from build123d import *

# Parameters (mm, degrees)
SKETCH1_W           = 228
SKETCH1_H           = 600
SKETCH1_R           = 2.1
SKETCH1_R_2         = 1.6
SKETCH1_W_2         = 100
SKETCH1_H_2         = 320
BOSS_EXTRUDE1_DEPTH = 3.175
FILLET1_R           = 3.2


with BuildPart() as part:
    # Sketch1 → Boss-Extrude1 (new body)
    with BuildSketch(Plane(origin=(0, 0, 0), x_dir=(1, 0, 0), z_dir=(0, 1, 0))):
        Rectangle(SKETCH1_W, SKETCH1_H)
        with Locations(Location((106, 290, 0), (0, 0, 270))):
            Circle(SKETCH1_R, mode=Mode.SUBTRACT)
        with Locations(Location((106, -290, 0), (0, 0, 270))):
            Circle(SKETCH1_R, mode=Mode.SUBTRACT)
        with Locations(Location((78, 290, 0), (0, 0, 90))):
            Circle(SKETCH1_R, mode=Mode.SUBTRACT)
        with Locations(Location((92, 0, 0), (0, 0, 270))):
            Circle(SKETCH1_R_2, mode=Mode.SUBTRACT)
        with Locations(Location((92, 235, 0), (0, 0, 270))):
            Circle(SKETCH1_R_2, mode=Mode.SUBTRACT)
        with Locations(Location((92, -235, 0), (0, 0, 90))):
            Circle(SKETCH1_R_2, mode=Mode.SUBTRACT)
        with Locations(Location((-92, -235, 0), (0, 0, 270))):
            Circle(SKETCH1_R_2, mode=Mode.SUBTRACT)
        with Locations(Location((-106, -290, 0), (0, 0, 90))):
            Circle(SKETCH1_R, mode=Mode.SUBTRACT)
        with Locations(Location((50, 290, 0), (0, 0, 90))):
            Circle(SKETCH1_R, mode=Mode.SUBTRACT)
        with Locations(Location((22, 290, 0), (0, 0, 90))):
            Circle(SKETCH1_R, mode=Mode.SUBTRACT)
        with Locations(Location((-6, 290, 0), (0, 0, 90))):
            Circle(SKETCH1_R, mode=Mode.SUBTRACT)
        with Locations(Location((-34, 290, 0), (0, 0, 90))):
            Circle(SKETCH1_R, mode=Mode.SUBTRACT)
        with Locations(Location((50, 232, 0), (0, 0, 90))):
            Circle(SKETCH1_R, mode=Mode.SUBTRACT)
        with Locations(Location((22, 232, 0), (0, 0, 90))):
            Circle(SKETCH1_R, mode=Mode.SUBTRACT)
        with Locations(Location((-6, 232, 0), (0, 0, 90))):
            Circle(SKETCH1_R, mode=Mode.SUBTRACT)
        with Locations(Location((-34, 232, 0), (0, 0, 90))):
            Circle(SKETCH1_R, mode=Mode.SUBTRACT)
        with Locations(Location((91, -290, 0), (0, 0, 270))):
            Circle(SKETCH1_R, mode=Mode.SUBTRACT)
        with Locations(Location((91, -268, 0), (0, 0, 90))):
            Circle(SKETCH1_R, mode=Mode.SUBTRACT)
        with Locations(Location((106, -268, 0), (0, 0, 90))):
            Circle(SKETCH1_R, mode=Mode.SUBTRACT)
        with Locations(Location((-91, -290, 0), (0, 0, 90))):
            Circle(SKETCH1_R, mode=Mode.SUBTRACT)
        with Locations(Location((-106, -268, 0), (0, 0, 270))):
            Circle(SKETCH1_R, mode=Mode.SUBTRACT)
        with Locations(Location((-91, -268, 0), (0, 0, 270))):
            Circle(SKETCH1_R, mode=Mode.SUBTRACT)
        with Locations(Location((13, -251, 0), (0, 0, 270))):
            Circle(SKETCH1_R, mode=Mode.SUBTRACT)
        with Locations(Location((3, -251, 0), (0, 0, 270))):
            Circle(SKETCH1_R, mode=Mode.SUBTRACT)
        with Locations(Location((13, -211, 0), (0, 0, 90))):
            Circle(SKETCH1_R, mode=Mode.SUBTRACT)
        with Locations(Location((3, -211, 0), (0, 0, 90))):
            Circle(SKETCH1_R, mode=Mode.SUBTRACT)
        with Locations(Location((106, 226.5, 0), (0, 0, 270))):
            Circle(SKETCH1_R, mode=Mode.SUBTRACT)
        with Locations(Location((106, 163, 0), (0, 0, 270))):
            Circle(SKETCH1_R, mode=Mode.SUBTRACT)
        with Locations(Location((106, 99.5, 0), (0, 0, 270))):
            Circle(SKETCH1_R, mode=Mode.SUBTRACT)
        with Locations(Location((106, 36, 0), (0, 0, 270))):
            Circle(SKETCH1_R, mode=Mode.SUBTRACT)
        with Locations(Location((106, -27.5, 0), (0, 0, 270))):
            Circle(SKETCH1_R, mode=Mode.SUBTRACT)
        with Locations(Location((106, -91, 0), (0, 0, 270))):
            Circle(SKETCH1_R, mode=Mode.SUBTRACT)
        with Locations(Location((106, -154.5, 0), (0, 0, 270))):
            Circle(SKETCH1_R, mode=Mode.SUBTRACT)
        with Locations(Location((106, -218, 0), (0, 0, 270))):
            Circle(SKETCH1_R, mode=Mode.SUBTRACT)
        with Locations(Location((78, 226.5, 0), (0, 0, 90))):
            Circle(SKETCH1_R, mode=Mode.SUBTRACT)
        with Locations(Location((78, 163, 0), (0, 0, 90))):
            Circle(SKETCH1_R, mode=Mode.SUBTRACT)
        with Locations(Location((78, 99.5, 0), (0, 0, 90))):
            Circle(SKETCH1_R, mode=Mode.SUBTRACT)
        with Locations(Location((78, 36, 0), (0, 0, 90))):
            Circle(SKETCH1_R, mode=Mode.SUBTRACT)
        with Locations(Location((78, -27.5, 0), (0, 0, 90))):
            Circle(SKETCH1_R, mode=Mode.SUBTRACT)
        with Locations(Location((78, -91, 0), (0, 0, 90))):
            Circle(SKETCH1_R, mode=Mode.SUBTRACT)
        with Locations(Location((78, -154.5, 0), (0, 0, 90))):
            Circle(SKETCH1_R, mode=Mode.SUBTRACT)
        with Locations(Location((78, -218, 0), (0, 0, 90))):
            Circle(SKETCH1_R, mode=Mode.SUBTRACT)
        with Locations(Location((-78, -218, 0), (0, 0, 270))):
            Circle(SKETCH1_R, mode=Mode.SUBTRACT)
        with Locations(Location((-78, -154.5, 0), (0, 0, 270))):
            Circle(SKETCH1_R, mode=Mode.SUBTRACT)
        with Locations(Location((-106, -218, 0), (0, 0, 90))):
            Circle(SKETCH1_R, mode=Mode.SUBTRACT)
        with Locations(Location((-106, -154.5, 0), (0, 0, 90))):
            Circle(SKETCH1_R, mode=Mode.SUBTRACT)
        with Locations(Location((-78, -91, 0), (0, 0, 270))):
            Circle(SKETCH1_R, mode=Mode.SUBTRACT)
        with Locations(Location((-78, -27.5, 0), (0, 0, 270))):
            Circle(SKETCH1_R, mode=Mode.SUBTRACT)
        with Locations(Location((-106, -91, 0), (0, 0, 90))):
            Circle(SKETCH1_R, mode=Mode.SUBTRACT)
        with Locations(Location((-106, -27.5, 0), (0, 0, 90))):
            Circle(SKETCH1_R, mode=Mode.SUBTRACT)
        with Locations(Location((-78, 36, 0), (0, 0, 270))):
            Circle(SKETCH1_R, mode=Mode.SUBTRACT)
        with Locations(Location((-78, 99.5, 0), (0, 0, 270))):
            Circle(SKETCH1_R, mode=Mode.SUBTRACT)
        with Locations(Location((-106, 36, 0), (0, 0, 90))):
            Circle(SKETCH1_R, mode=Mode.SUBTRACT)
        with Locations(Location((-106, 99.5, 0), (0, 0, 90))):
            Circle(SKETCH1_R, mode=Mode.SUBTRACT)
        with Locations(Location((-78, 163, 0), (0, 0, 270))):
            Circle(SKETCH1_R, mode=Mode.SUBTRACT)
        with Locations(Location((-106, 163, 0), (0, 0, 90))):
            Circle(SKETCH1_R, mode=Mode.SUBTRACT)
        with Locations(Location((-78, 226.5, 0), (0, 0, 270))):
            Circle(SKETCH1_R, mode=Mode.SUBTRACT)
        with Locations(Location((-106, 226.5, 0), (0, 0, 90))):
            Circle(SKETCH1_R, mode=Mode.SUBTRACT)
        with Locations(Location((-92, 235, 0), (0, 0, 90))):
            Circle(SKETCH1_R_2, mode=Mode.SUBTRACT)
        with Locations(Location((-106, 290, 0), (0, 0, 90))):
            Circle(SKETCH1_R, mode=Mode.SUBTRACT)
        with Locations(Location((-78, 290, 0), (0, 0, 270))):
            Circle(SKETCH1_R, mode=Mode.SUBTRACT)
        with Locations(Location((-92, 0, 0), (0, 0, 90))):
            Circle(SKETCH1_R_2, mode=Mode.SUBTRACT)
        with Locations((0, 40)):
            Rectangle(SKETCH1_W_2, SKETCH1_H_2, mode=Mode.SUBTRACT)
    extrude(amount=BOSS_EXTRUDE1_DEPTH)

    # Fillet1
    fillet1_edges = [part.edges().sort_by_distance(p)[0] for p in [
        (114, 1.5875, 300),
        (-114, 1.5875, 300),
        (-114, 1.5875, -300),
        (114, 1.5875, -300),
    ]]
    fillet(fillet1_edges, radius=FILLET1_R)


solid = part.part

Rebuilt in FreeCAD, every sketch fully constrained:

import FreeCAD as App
import Part
import Sketcher
Q = App.Units.Quantity


def edges_at(feature, points):
    """Names of the edges that pass closest to the given points."""
    edges = feature.Shape.Edges
    near = lambda p: min(range(len(edges)), key=lambda i: edges[i].distToShape(Part.Vertex(*p))[0])
    return sorted({f"Edge{near(p) + 1}" for p in points})

doc = App.newDocument("Part")
params = doc.addObject("Spreadsheet::Sheet", "Params")
for row, (alias, value) in enumerate([
    ("sketch1_diameter", "4.2 mm"),
    ("sketch1_diameter2", "3.2 mm"),
    ("sketch1_width", "228 mm"),
    ("sketch1_width2", "100 mm"),
    ("sketch1_height", "600 mm"),
    ("pad1_length", "3.175 mm"),
    ("fillet_radius", "3.2 mm"),
], start=1):
    params.set(f"A{row}", alias)
    params.set(f"B{row}", "=" + value)
    params.setAlias(f"B{row}", alias)

body = doc.addObject("PartDesign::Body", "Body")

# Sketch on XZ plane
sketch1 = body.newObject("Sketcher::SketchObject", "Sketch")
sketch1.AttachmentSupport = (doc.getObject("XZ_Plane"), [""])
sketch1.MapMode = "FlatFace"
sketch1.addGeometry(Part.LineSegment(App.Vector(-114, -300, 0), App.Vector(-114, 300, 0)), False)
sketch1.addGeometry(Part.LineSegment(App.Vector(-114, 300, 0), App.Vector(114, 300, 0)), False)
sketch1.addGeometry(Part.LineSegment(App.Vector(114, 300, 0), App.Vector(114, -300, 0)), False)
sketch1.addGeometry(Part.LineSegment(App.Vector(114, -300, 0), App.Vector(-114, -300, 0)), False)
sketch1.addGeometry(Part.Circle(App.Vector(-106, 290, 0), App.Vector(0, 0, 1), 2.1), False)
sketch1.addGeometry(Part.Circle(App.Vector(-106, 268, 0), App.Vector(0, 0, 1), 2.1), False)
sketch1.addGeometry(Part.Circle(App.Vector(-91, 290, 0), App.Vector(0, 0, 1), 2.1), False)
sketch1.addGeometry(Part.Circle(App.Vector(-91, 268, 0), App.Vector(0, 0, 1), 2.1), False)
sketch1.addGeometry(Part.Circle(App.Vector(-92, 235, 0), App.Vector(0, 0, 1), 1.6), False)
sketch1.addGeometry(Part.Circle(App.Vector(-106, 218, 0), App.Vector(0, 0, 1), 2.1), False)
sketch1.addGeometry(Part.Circle(App.Vector(-106, 154.5, 0), App.Vector(0, 0, 1), 2.1), False)
sketch1.addGeometry(Part.Circle(App.Vector(-78, 218, 0), App.Vector(0, 0, 1), 2.1), False)
sketch1.addGeometry(Part.Circle(App.Vector(-78, 154.5, 0), App.Vector(0, 0, 1), 2.1), False)
sketch1.addGeometry(Part.Circle(App.Vector(-106, 91, 0), App.Vector(0, 0, 1), 2.1), False)
sketch1.addGeometry(Part.Circle(App.Vector(-78, 91, 0), App.Vector(0, 0, 1), 2.1), False)
sketch1.addGeometry(Part.Circle(App.Vector(-106, 27.5, 0), App.Vector(0, 0, 1), 2.1), False)
sketch1.addGeometry(Part.Circle(App.Vector(-78, 27.5, 0), App.Vector(0, 0, 1), 2.1), False)
sketch1.addGeometry(Part.Circle(App.Vector(3, 251, 0), App.Vector(0, 0, 1), 2.1), False)
sketch1.addGeometry(Part.Circle(App.Vector(13, 251, 0), App.Vector(0, 0, 1), 2.1), False)
sketch1.addGeometry(Part.Circle(App.Vector(3, 211, 0), App.Vector(0, 0, 1), 2.1), False)
sketch1.addGeometry(Part.Circle(App.Vector(13, 211, 0), App.Vector(0, 0, 1), 2.1), False)
sketch1.addGeometry(Part.Circle(App.Vector(91, 290, 0), App.Vector(0, 0, 1), 2.1), False)
sketch1.addGeometry(Part.Circle(App.Vector(91, 268, 0), App.Vector(0, 0, 1), 2.1), False)
sketch1.addGeometry(Part.Circle(App.Vector(106, 290, 0), App.Vector(0, 0, 1), 2.1), False)
sketch1.addGeometry(Part.Circle(App.Vector(106, 268, 0), App.Vector(0, 0, 1), 2.1), False)
sketch1.addGeometry(Part.Circle(App.Vector(92, 235, 0), App.Vector(0, 0, 1), 1.6), False)
sketch1.addGeometry(Part.Circle(App.Vector(78, 218, 0), App.Vector(0, 0, 1), 2.1), False)
sketch1.addGeometry(Part.Circle(App.Vector(78, 154.5, 0), App.Vector(0, 0, 1), 2.1), False)
sketch1.addGeometry(Part.Circle(App.Vector(106, 218, 0), App.Vector(0, 0, 1), 2.1), False)
sketch1.addGeometry(Part.Circle(App.Vector(106, 154.5, 0), App.Vector(0, 0, 1), 2.1), False)
sketch1.addGeometry(Part.Circle(App.Vector(78, 91, 0), App.Vector(0, 0, 1), 2.1), False)
sketch1.addGeometry(Part.Circle(App.Vector(106, 91, 0), App.Vector(0, 0, 1), 2.1), False)
sketch1.addGeometry(Part.Circle(App.Vector(78, 27.5, 0), App.Vector(0, 0, 1), 2.1), False)
sketch1.addGeometry(Part.Circle(App.Vector(106, 27.5, 0), App.Vector(0, 0, 1), 2.1), False)
sketch1.addGeometry(Part.Circle(App.Vector(-106, -36, 0), App.Vector(0, 0, 1), 2.1), False)
sketch1.addGeometry(Part.Circle(App.Vector(-92, 0, 0), App.Vector(0, 0, 1), 1.6), False)
sketch1.addGeometry(Part.Circle(App.Vector(-78, -36, 0), App.Vector(0, 0, 1), 2.1), False)
sketch1.addGeometry(Part.Circle(App.Vector(-106, -99.5, 0), App.Vector(0, 0, 1), 2.1), False)
sketch1.addGeometry(Part.Circle(App.Vector(-78, -99.5, 0), App.Vector(0, 0, 1), 2.1), False)
sketch1.addGeometry(Part.Circle(App.Vector(-106, -163, 0), App.Vector(0, 0, 1), 2.1), False)
sketch1.addGeometry(Part.Circle(App.Vector(-78, -163, 0), App.Vector(0, 0, 1), 2.1), False)
sketch1.addGeometry(Part.Circle(App.Vector(-106, -226.5, 0), App.Vector(0, 0, 1), 2.1), False)
sketch1.addGeometry(Part.Circle(App.Vector(-92, -235, 0), App.Vector(0, 0, 1), 1.6), False)
sketch1.addGeometry(Part.Circle(App.Vector(-106, -290, 0), App.Vector(0, 0, 1), 2.1), False)
sketch1.addGeometry(Part.Circle(App.Vector(-78, -226.5, 0), App.Vector(0, 0, 1), 2.1), False)
sketch1.addGeometry(Part.Circle(App.Vector(-78, -290, 0), App.Vector(0, 0, 1), 2.1), False)
sketch1.addGeometry(Part.Circle(App.Vector(-34, -232, 0), App.Vector(0, 0, 1), 2.1), False)
sketch1.addGeometry(Part.Circle(App.Vector(-34, -290, 0), App.Vector(0, 0, 1), 2.1), False)
sketch1.addGeometry(Part.Circle(App.Vector(-6, -232, 0), App.Vector(0, 0, 1), 2.1), False)
sketch1.addGeometry(Part.Circle(App.Vector(-6, -290, 0), App.Vector(0, 0, 1), 2.1), False)
sketch1.addGeometry(Part.LineSegment(App.Vector(50, 120, 0), App.Vector(-50, 120, 0)), False)
sketch1.addGeometry(Part.LineSegment(App.Vector(-50, 120, 0), App.Vector(-50, -200, 0)), False)
sketch1.addGeometry(Part.LineSegment(App.Vector(-50, -200, 0), App.Vector(50, -200, 0)), False)
sketch1.addGeometry(Part.LineSegment(App.Vector(50, -200, 0), App.Vector(50, 120, 0)), False)
sketch1.addGeometry(Part.Circle(App.Vector(78, -36, 0), App.Vector(0, 0, 1), 2.1), False)
sketch1.addGeometry(Part.Circle(App.Vector(92, 0, 0), App.Vector(0, 0, 1), 1.6), False)
sketch1.addGeometry(Part.Circle(App.Vector(106, -36, 0), App.Vector(0, 0, 1), 2.1), False)
sketch1.addGeometry(Part.Circle(App.Vector(78, -99.5, 0), App.Vector(0, 0, 1), 2.1), False)
sketch1.addGeometry(Part.Circle(App.Vector(106, -99.5, 0), App.Vector(0, 0, 1), 2.1), False)
sketch1.addGeometry(Part.Circle(App.Vector(22, -232, 0), App.Vector(0, 0, 1), 2.1), False)
sketch1.addGeometry(Part.Circle(App.Vector(22, -290, 0), App.Vector(0, 0, 1), 2.1), False)
sketch1.addGeometry(Part.Circle(App.Vector(50, -232, 0), App.Vector(0, 0, 1), 2.1), False)
sketch1.addGeometry(Part.Circle(App.Vector(50, -290, 0), App.Vector(0, 0, 1), 2.1), False)
sketch1.addGeometry(Part.Circle(App.Vector(78, -163, 0), App.Vector(0, 0, 1), 2.1), False)
sketch1.addGeometry(Part.Circle(App.Vector(106, -163, 0), App.Vector(0, 0, 1), 2.1), False)
sketch1.addGeometry(Part.Circle(App.Vector(78, -226.5, 0), App.Vector(0, 0, 1), 2.1), False)
sketch1.addGeometry(Part.Circle(App.Vector(78, -290, 0), App.Vector(0, 0, 1), 2.1), False)
sketch1.addGeometry(Part.Circle(App.Vector(92, -235, 0), App.Vector(0, 0, 1), 1.6), False)
sketch1.addGeometry(Part.Circle(App.Vector(106, -226.5, 0), App.Vector(0, 0, 1), 2.1), False)
sketch1.addGeometry(Part.Circle(App.Vector(106, -290, 0), App.Vector(0, 0, 1), 2.1), False)
sketch1.addConstraint(Sketcher.Constraint("Coincident", 0, 2, 1, 1))
sketch1.addConstraint(Sketcher.Constraint("Coincident", 1, 2, 2, 1))
sketch1.addConstraint(Sketcher.Constraint("Coincident", 2, 2, 3, 1))
sketch1.addConstraint(Sketcher.Constraint("Coincident", 3, 2, 0, 1))
sketch1.addConstraint(Sketcher.Constraint("Coincident", 50, 2, 51, 1))
sketch1.addConstraint(Sketcher.Constraint("Coincident", 51, 2, 52, 1))
sketch1.addConstraint(Sketcher.Constraint("Coincident", 52, 2, 53, 1))
sketch1.addConstraint(Sketcher.Constraint("Coincident", 53, 2, 50, 1))
sketch1.addConstraint(Sketcher.Constraint("Vertical", 0))
sketch1.addConstraint(Sketcher.Constraint("Horizontal", 1))
sketch1.addConstraint(Sketcher.Constraint("Vertical", 2))
sketch1.addConstraint(Sketcher.Constraint("Horizontal", 3))
sketch1.addConstraint(Sketcher.Constraint("Horizontal", 50))
sketch1.addConstraint(Sketcher.Constraint("Vertical", 51))
sketch1.addConstraint(Sketcher.Constraint("Horizontal", 52))
sketch1.addConstraint(Sketcher.Constraint("Vertical", 53))
sketch1.addConstraint(Sketcher.Constraint("Equal", 4, 5))
sketch1.addConstraint(Sketcher.Constraint("Equal", 5, 6))
sketch1.addConstraint(Sketcher.Constraint("Equal", 6, 7))
sketch1.addConstraint(Sketcher.Constraint("Equal", 7, 9))
sketch1.addConstraint(Sketcher.Constraint("Equal", 9, 10))
sketch1.addConstraint(Sketcher.Constraint("Equal", 10, 11))
sketch1.addConstraint(Sketcher.Constraint("Equal", 11, 12))
sketch1.addConstraint(Sketcher.Constraint("Equal", 12, 13))
sketch1.addConstraint(Sketcher.Constraint("Equal", 13, 14))
sketch1.addConstraint(Sketcher.Constraint("Equal", 14, 15))
sketch1.addConstraint(Sketcher.Constraint("Equal", 15, 16))
sketch1.addConstraint(Sketcher.Constraint("Equal", 16, 17))
sketch1.addConstraint(Sketcher.Constraint("Equal", 17, 18))
sketch1.addConstraint(Sketcher.Constraint("Equal", 18, 19))
sketch1.addConstraint(Sketcher.Constraint("Equal", 19, 20))
sketch1.addConstraint(Sketcher.Constraint("Equal", 20, 21))
sketch1.addConstraint(Sketcher.Constraint("Equal", 21, 22))
sketch1.addConstraint(Sketcher.Constraint("Equal", 22, 23))
sketch1.addConstraint(Sketcher.Constraint("Equal", 23, 24))
sketch1.addConstraint(Sketcher.Constraint("Equal", 8, 25))
sketch1.addConstraint(Sketcher.Constraint("Equal", 24, 26))
sketch1.addConstraint(Sketcher.Constraint("Equal", 26, 27))
sketch1.addConstraint(Sketcher.Constraint("Equal", 27, 28))
sketch1.addConstraint(Sketcher.Constraint("Equal", 28, 29))
sketch1.addConstraint(Sketcher.Constraint("Equal", 29, 30))
sketch1.addConstraint(Sketcher.Constraint("Equal", 30, 31))
sketch1.addConstraint(Sketcher.Constraint("Equal", 31, 32))
sketch1.addConstraint(Sketcher.Constraint("Equal", 32, 33))
sketch1.addConstraint(Sketcher.Constraint("Equal", 33, 34))
sketch1.addConstraint(Sketcher.Constraint("Equal", 25, 35))
sketch1.addConstraint(Sketcher.Constraint("Equal", 34, 36))
sketch1.addConstraint(Sketcher.Constraint("Equal", 36, 37))
sketch1.addConstraint(Sketcher.Constraint("Equal", 37, 38))
sketch1.addConstraint(Sketcher.Constraint("Equal", 38, 39))
sketch1.addConstraint(Sketcher.Constraint("Equal", 39, 40))
sketch1.addConstraint(Sketcher.Constraint("Equal", 40, 41))
sketch1.addConstraint(Sketcher.Constraint("Equal", 35, 42))
sketch1.addConstraint(Sketcher.Constraint("Equal", 41, 43))
sketch1.addConstraint(Sketcher.Constraint("Equal", 43, 44))
sketch1.addConstraint(Sketcher.Constraint("Equal", 44, 45))
sketch1.addConstraint(Sketcher.Constraint("Equal", 45, 46))
sketch1.addConstraint(Sketcher.Constraint("Equal", 46, 47))
sketch1.addConstraint(Sketcher.Constraint("Equal", 47, 48))
sketch1.addConstraint(Sketcher.Constraint("Equal", 48, 49))
sketch1.addConstraint(Sketcher.Constraint("Equal", 49, 54))
sketch1.addConstraint(Sketcher.Constraint("Equal", 42, 55))
sketch1.addConstraint(Sketcher.Constraint("Equal", 54, 56))
sketch1.addConstraint(Sketcher.Constraint("Equal", 56, 57))
sketch1.addConstraint(Sketcher.Constraint("Equal", 57, 58))
sketch1.addConstraint(Sketcher.Constraint("Equal", 58, 59))
sketch1.addConstraint(Sketcher.Constraint("Equal", 59, 60))
sketch1.addConstraint(Sketcher.Constraint("Equal", 60, 61))
sketch1.addConstraint(Sketcher.Constraint("Equal", 61, 62))
sketch1.addConstraint(Sketcher.Constraint("Equal", 62, 63))
sketch1.addConstraint(Sketcher.Constraint("Equal", 63, 64))
sketch1.addConstraint(Sketcher.Constraint("Equal", 64, 65))
sketch1.addConstraint(Sketcher.Constraint("Equal", 65, 66))
sketch1.addConstraint(Sketcher.Constraint("Equal", 55, 67))
sketch1.addConstraint(Sketcher.Constraint("Equal", 66, 68))
sketch1.addConstraint(Sketcher.Constraint("Equal", 68, 69))
sketch1.addConstraint(Sketcher.Constraint("Symmetric", 25, 3, 42, 3, -1, 1))
sketch1.addConstraint(Sketcher.Constraint("Symmetric", 23, 3, 43, 3, -1, 1))
sketch1.addConstraint(Sketcher.Constraint("Symmetric", 35, 3, 55, 3, -1, 1))
sketch1.addConstraint(Sketcher.Constraint("Symmetric", 8, 3, 67, 3, -1, 1))
sketch1.addConstraint(Sketcher.Constraint("Symmetric", 4, 3, 69, 3, -1, 1))
sketch1.addConstraint(Sketcher.Constraint("Symmetric", 0, 2, 2, 2, -1, 1))
sketch1.addConstraint(Sketcher.Constraint("Symmetric", 6, 3, 21, 3, -2))
sketch1.addConstraint(Sketcher.Constraint("Symmetric", 7, 3, 22, 3, -2))
sketch1.addConstraint(Sketcher.Constraint("Symmetric", 4, 3, 23, 3, -2))
sketch1.addConstraint(Sketcher.Constraint("Symmetric", 5, 3, 24, 3, -2))
sketch1.addConstraint(Sketcher.Constraint("Symmetric", 8, 3, 25, 3, -2))
sketch1.addConstraint(Sketcher.Constraint("Symmetric", 11, 3, 26, 3, -2))
sketch1.addConstraint(Sketcher.Constraint("Symmetric", 12, 3, 27, 3, -2))
sketch1.addConstraint(Sketcher.Constraint("Symmetric", 9, 3, 28, 3, -2))
sketch1.addConstraint(Sketcher.Constraint("Symmetric", 10, 3, 29, 3, -2))
sketch1.addConstraint(Sketcher.Constraint("Symmetric", 14, 3, 30, 3, -2))
sketch1.addConstraint(Sketcher.Constraint("Symmetric", 13, 3, 31, 3, -2))
sketch1.addConstraint(Sketcher.Constraint("Symmetric", 16, 3, 32, 3, -2))
sketch1.addConstraint(Sketcher.Constraint("Symmetric", 15, 3, 33, 3, -2))
sketch1.addConstraint(Sketcher.Constraint("Symmetric", 36, 3, 54, 3, -2))
sketch1.addConstraint(Sketcher.Constraint("Symmetric", 34, 3, 56, 3, -2))
sketch1.addConstraint(Sketcher.Constraint("Symmetric", 38, 3, 57, 3, -2))
sketch1.addConstraint(Sketcher.Constraint("Symmetric", 37, 3, 58, 3, -2))
sketch1.addConstraint(Sketcher.Constraint("Symmetric", 40, 3, 63, 3, -2))
sketch1.addConstraint(Sketcher.Constraint("Symmetric", 39, 3, 64, 3, -2))
sketch1.addConstraint(Sketcher.Constraint("Symmetric", 44, 3, 65, 3, -2))
sketch1.addConstraint(Sketcher.Constraint("Symmetric", 45, 3, 66, 3, -2))
sketch1.addConstraint(Sketcher.Constraint("Symmetric", 41, 3, 68, 3, -2))
sketch1.addConstraint(Sketcher.Constraint("PointOnObject", 35, 3, -1))
sketch1.addConstraint(Sketcher.Constraint("Horizontal", 4, 3, 6, 3))
sketch1.addConstraint(Sketcher.Constraint("Horizontal", 5, 3, 7, 3))
sketch1.addConstraint(Sketcher.Constraint("Horizontal", 9, 3, 11, 3))
sketch1.addConstraint(Sketcher.Constraint("Horizontal", 10, 3, 12, 3))
sketch1.addConstraint(Sketcher.Constraint("Horizontal", 13, 3, 14, 3))
sketch1.addConstraint(Sketcher.Constraint("Horizontal", 15, 3, 16, 3))
sketch1.addConstraint(Sketcher.Constraint("Horizontal", 17, 3, 18, 3))
sketch1.addConstraint(Sketcher.Constraint("Horizontal", 19, 3, 20, 3))
sketch1.addConstraint(Sketcher.Constraint("Horizontal", 34, 3, 36, 3))
sketch1.addConstraint(Sketcher.Constraint("Horizontal", 37, 3, 38, 3))
sketch1.addConstraint(Sketcher.Constraint("Horizontal", 39, 3, 40, 3))
sketch1.addConstraint(Sketcher.Constraint("Horizontal", 41, 3, 44, 3))
sketch1.addConstraint(Sketcher.Constraint("Horizontal", 43, 3, 45, 3))
sketch1.addConstraint(Sketcher.Constraint("Horizontal", 45, 3, 47, 3))
sketch1.addConstraint(Sketcher.Constraint("Horizontal", 46, 3, 48, 3))
sketch1.addConstraint(Sketcher.Constraint("Horizontal", 47, 3, 49, 3))
sketch1.addConstraint(Sketcher.Constraint("Horizontal", 48, 3, 59, 3))
sketch1.addConstraint(Sketcher.Constraint("Horizontal", 49, 3, 60, 3))
sketch1.addConstraint(Sketcher.Constraint("Horizontal", 59, 3, 61, 3))
sketch1.addConstraint(Sketcher.Constraint("Horizontal", 60, 3, 62, 3))
sketch1.addConstraint(Sketcher.Constraint("Vertical", 4, 3, 5, 3))
sketch1.addConstraint(Sketcher.Constraint("Vertical", 6, 3, 7, 3))
sketch1.addConstraint(Sketcher.Constraint("Vertical", 5, 3, 9, 3))
sketch1.addConstraint(Sketcher.Constraint("Vertical", 9, 3, 10, 3))
sketch1.addConstraint(Sketcher.Constraint("Vertical", 11, 3, 12, 3))
sketch1.addConstraint(Sketcher.Constraint("Vertical", 10, 3, 13, 3))
sketch1.addConstraint(Sketcher.Constraint("Vertical", 12, 3, 14, 3))
sketch1.addConstraint(Sketcher.Constraint("Vertical", 13, 3, 15, 3))
sketch1.addConstraint(Sketcher.Constraint("Vertical", 14, 3, 16, 3))
sketch1.addConstraint(Sketcher.Constraint("Vertical", 17, 3, 19, 3))
sketch1.addConstraint(Sketcher.Constraint("Vertical", 18, 3, 20, 3))
sketch1.addConstraint(Sketcher.Constraint("Vertical", 15, 3, 34, 3))
sketch1.addConstraint(Sketcher.Constraint("Vertical", 8, 3, 35, 3))
sketch1.addConstraint(Sketcher.Constraint("Vertical", 16, 3, 36, 3))
sketch1.addConstraint(Sketcher.Constraint("Vertical", 34, 3, 37, 3))
sketch1.addConstraint(Sketcher.Constraint("Vertical", 36, 3, 38, 3))
sketch1.addConstraint(Sketcher.Constraint("Vertical", 37, 3, 39, 3))
sketch1.addConstraint(Sketcher.Constraint("Vertical", 38, 3, 40, 3))
sketch1.addConstraint(Sketcher.Constraint("Vertical", 39, 3, 41, 3))
sketch1.addConstraint(Sketcher.Constraint("Vertical", 40, 3, 44, 3))
sketch1.addConstraint(Sketcher.Constraint("Vertical", 44, 3, 45, 3))
sketch1.addConstraint(Sketcher.Constraint("Vertical", 46, 3, 47, 3))
sketch1.addConstraint(Sketcher.Constraint("Vertical", 48, 3, 49, 3))
sketch1.addConstraint(Sketcher.Constraint("Vertical", 59, 3, 60, 3))
sketch1.addConstraint(Sketcher.Constraint("Vertical", 61, 3, 62, 3))
sketch1.addConstraint(Sketcher.Constraint("Vertical", 62, 3, 52, 2))
sketch1.addConstraint(Sketcher.Constraint("Diameter", 4, Q("4.2 mm")))
sketch1.addConstraint(Sketcher.Constraint("Diameter", 8, Q("3.2 mm")))
sketch1.addConstraint(Sketcher.Constraint("DistanceX", 1, 1, 1, 2, Q("228 mm")))
sketch1.addConstraint(Sketcher.Constraint("DistanceX", 50, 2, 50, 1, Q("100 mm")))
sketch1.addConstraint(Sketcher.Constraint("DistanceY", 0, 1, 0, 2, Q("600 mm")))
sketch1.addConstraint(Sketcher.Constraint("DistanceY", 51, 2, 51, 1, Q("320 mm")))
sketch1.addConstraint(Sketcher.Constraint("DistanceX", 4, 3, -1, 1, Q("106 mm")))
sketch1.addConstraint(Sketcher.Constraint("DistanceY", -1, 1, 4, 3, Q("290 mm")))
sketch1.addConstraint(Sketcher.Constraint("DistanceY", -1, 1, 5, 3, Q("268 mm")))
sketch1.addConstraint(Sketcher.Constraint("DistanceX", 6, 3, -1, 1, Q("91 mm")))
sketch1.addConstraint(Sketcher.Constraint("DistanceX", 8, 3, -1, 1, Q("92 mm")))
sketch1.addConstraint(Sketcher.Constraint("DistanceY", -1, 1, 8, 3, Q("235 mm")))
sketch1.addConstraint(Sketcher.Constraint("DistanceY", -1, 1, 9, 3, Q("218 mm")))
sketch1.addConstraint(Sketcher.Constraint("DistanceX", 11, 3, -1, 1, Q("78 mm")))
sketch1.addConstraint(Sketcher.Constraint("DistanceY", -1, 1, 13, 3, Q("91 mm")))
sketch1.addConstraint(Sketcher.Constraint("DistanceX", -1, 1, 17, 3, Q("3 mm")))
sketch1.addConstraint(Sketcher.Constraint("DistanceY", -1, 1, 17, 3, Q("251 mm")))
sketch1.addConstraint(Sketcher.Constraint("DistanceX", -1, 1, 18, 3, Q("13 mm")))
sketch1.addConstraint(Sketcher.Constraint("DistanceY", -1, 1, 19, 3, Q("211 mm")))
sketch1.addConstraint(Sketcher.Constraint("DistanceY", 34, 3, -1, 1, Q("36 mm")))
sketch1.addConstraint(Sketcher.Constraint("DistanceY", 39, 3, -1, 1, Q("163 mm")))
sketch1.addConstraint(Sketcher.Constraint("DistanceX", 46, 3, -1, 1, Q("34 mm")))
sketch1.addConstraint(Sketcher.Constraint("DistanceY", 46, 3, -1, 1, Q("232 mm")))
sketch1.addConstraint(Sketcher.Constraint("DistanceX", 48, 3, -1, 1, Q("6 mm")))
sketch1.addConstraint(Sketcher.Constraint("DistanceX", -1, 1, 59, 3, Q("22 mm")))
sketch1.addConstraint(Sketcher.Constraint("DistanceX", -1, 1, 61, 3, Q("50 mm")))
sketch1.addConstraint(Sketcher.Constraint("DistanceY", -1, 1, 50, 2, Q("120 mm")))
sketch1.addConstraint(Sketcher.Constraint("DistanceY", -1, 1, 10, 3, Q("154.5 mm")))
sketch1.addConstraint(Sketcher.Constraint("DistanceY", -1, 1, 15, 3, Q("27.5 mm")))
sketch1.addConstraint(Sketcher.Constraint("DistanceY", 37, 3, -1, 1, Q("99.5 mm")))
sketch1.addConstraint(Sketcher.Constraint("DistanceY", 41, 3, -1, 1, Q("226.5 mm")))
sketch1.setExpression("Constraints[151]", "Params.sketch1_diameter")
sketch1.setExpression("Constraints[152]", "Params.sketch1_diameter2")
sketch1.setExpression("Constraints[153]", "Params.sketch1_width")
sketch1.setExpression("Constraints[154]", "Params.sketch1_width2")
sketch1.setExpression("Constraints[155]", "Params.sketch1_height")
pad1 = body.newObject("PartDesign::Pad", "Pad")
pad1.Profile = sketch1
pad1.setExpression("Length", "Params.pad1_length")
pad1.Reversed = True
doc.recompute()

fillet = body.newObject("PartDesign::Fillet", "Fillet")
fillet.Base = (pad1, edges_at(pad1, [
    (114, 1.587, 300),
    (-114, 1.587, 300),
    (-114, 1.587, -300),
    (114, 1.587, -300),
]))
fillet.setExpression("Radius", "Params.fillet_radius")

doc.recompute()
